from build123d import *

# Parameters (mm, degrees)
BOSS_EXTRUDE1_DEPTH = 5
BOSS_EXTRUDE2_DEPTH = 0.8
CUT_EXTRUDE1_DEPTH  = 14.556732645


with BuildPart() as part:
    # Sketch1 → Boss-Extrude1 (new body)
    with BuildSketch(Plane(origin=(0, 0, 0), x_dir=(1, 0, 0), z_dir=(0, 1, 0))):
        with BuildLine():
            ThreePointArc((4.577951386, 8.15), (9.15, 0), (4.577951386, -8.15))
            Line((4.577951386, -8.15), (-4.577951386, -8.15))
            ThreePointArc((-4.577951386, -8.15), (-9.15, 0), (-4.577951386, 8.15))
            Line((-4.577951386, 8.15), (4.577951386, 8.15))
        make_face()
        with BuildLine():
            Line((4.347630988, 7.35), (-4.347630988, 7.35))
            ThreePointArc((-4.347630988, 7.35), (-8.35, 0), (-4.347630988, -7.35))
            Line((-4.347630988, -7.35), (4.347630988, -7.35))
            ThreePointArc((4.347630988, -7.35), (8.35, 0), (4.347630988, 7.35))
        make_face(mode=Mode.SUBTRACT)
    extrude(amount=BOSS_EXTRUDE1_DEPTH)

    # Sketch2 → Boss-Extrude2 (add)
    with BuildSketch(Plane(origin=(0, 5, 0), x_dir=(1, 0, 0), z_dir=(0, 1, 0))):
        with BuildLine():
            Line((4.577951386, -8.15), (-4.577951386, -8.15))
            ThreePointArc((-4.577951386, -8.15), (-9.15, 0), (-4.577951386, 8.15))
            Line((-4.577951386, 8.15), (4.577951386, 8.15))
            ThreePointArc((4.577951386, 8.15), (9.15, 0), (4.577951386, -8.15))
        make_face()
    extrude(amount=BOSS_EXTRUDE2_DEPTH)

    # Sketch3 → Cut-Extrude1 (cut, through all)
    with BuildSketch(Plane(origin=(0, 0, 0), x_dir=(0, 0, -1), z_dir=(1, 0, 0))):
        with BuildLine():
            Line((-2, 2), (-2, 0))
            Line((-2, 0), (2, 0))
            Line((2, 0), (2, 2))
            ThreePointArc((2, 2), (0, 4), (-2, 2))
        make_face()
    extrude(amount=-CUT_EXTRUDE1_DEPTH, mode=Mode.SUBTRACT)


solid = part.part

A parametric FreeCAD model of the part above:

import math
import FreeCAD as App
import Part
import Sketcher
Q = App.Units.Quantity

doc = App.newDocument("Part")
body = doc.addObject("PartDesign::Body", "Body")

# Sketch on XZ plane
sketch1 = body.newObject("Sketcher::SketchObject", "Sketch")
sketch1.AttachmentSupport = (doc.getObject("XZ_Plane"), [""])
sketch1.MapMode = "FlatFace"
sketch1.addGeometry([
    Part.ArcOfCircle(Part.Circle(App.Vector(-0.4, 0, 0), App.Vector(0, 0, 1), 9.55), math.radians(-58.583766), math.radians(58.583766)),  # 0
    Part.LineSegment(App.Vector(4.577951, -8.15, 0), App.Vector(-4.577951, -8.15, 0)),  # 1
    Part.ArcOfCircle(Part.Circle(App.Vector(0.4, 0, 0), App.Vector(0, 0, 1), 9.55), math.radians(121.416234), math.radians(238.583766)),  # 2
    Part.LineSegment(App.Vector(-4.577951, 8.15, 0), App.Vector(4.577951, 8.15, 0)),  # 3
    Part.ArcOfCircle(Part.Circle(App.Vector(-0.4, 0, 0), App.Vector(0, 0, 1), 8.75), math.radians(-57.14012), math.radians(57.14012)),  # 4
    Part.LineSegment(App.Vector(4.347631, 7.35, 0), App.Vector(-4.347631, 7.35, 0)),  # 5
    Part.ArcOfCircle(Part.Circle(App.Vector(0.4, 0, 0), App.Vector(0, 0, 1), 8.75), math.radians(122.85988), math.radians(237.14012)),  # 6
    Part.LineSegment(App.Vector(-4.347631, -7.35, 0), App.Vector(4.347631, -7.35, 0)),  # 7
], False)
sketch1.addConstraint([
    Sketcher.Constraint("Coincident", 0, 1, 1, 1),
    Sketcher.Constraint("Coincident", 1, 2, 2, 2),
    Sketcher.Constraint("Coincident", 2, 1, 3, 1),
    Sketcher.Constraint("Coincident", 3, 2, 0, 2),
    Sketcher.Constraint("Coincident", 4, 2, 5, 1),
    Sketcher.Constraint("Coincident", 5, 2, 6, 1),
    Sketcher.Constraint("Coincident", 6, 2, 7, 1),
    Sketcher.Constraint("Coincident", 7, 2, 4, 1),
    Sketcher.Constraint("Horizontal", 1),
    Sketcher.Constraint("Horizontal", 3),
    Sketcher.Constraint("Horizontal", 5),
    Sketcher.Constraint("Horizontal", 7),
    Sketcher.Constraint("Coincident", 4, 3, 0, 3),
    Sketcher.Constraint("Coincident", 6, 3, 2, 3),
    Sketcher.Constraint("Equal", 0, 2),
    Sketcher.Constraint("Equal", 4, 6),
    Sketcher.Constraint("Symmetric", 0, 3, 2, 3, -1, 1),
    Sketcher.Constraint("Symmetric", 1, 2, 2, 1, -1),
    Sketcher.Constraint("Vertical", 5, 2, 6, 2),
    Sketcher.Constraint("Radius", 0, Q("9.55 mm")),
    Sketcher.Constraint("Radius", 4, Q("8.75 mm")),
    Sketcher.Constraint("DistanceX", 0, 3, -1, 1, Q("0.4 mm")),
    Sketcher.Constraint("DistanceY", 1, 2, 2, 1, Q("16.3 mm")),
    Sketcher.Constraint("DistanceY", 4, 2, 3, 2, Q("0.8 mm")),
])
pad1 = body.newObject("PartDesign::Pad", "Pad")
pad1.Profile = sketch1
pad1.Length = 5
pad1.Reversed = True

# Sketch on XZ plane
sketch2 = body.newObject("Sketcher::SketchObject", "Sketch001")
sketch2.AttachmentSupport = (doc.getObject("XZ_Plane"), [""])
sketch2.MapMode = "FlatFace"
sketch2.AttachmentOffset = App.Placement(App.Vector(0, 0, -5), App.Rotation())
sketch2.addGeometry([
    Part.LineSegment(App.Vector(-4.577951, 8.15, 0), App.Vector(4.577951, 8.15, 0)),
    Part.ArcOfCircle(Part.Circle(App.Vector(-0.4, 0, 0), App.Vector(0, 0, 1), 9.55), math.radians(-58.583766), math.radians(58.583766)),
    Part.LineSegment(App.Vector(4.577951, -8.15, 0), App.Vector(-4.577951, -8.15, 0)),
    Part.ArcOfCircle(Part.Circle(App.Vector(0.4, 0, 0), App.Vector(0, 0, 1), 9.55), math.radians(121.416234), math.radians(238.583766)),
], False)
sketch2.addConstraint([
    Sketcher.Constraint("Coincident", 0, 2, 1, 2),
    Sketcher.Constraint("Coincident", 1, 1, 2, 1),
    Sketcher.Constraint("Coincident", 2, 2, 3, 2),
    Sketcher.Constraint("Coincident", 3, 1, 0, 1),
    Sketcher.Constraint("Horizontal", 0),
    Sketcher.Constraint("Horizontal", 2),
    Sketcher.Constraint("Equal", 1, 3),
    Sketcher.Constraint("Symmetric", 1, 3, 3, 3, -1, 1),
    Sketcher.Constraint("Symmetric", 0, 2, 1, 1, -1),
    Sketcher.Constraint("Radius", 1, Q("9.55 mm")),
    Sketcher.Constraint("DistanceX", 1, 3, -1, 1, Q("0.4 mm")),
    Sketcher.Constraint("DistanceY", 1, 1, 0, 2, Q("16.3 mm")),
])
pad2 = body.newObject("PartDesign::Pad", "Pad001")
pad2.Profile = sketch2
pad2.Length = 0.8
pad2.Reversed = True

# Sketch on YZ plane
sketch3 = body.newObject("Sketcher::SketchObject", "Sketch002")
sketch3.AttachmentSupport = (doc.getObject("YZ_Plane"), [""])
sketch3.MapMode = "FlatFace"
sketch3.addGeometry([
    Part.LineSegment(App.Vector(2, 2, 0), App.Vector(0, 2, 0)),
    Part.LineSegment(App.Vector(0, 2, 0), App.Vector(0, -2, 0)),
    Part.LineSegment(App.Vector(0, -2, 0), App.Vector(2, -2, 0)),
    Part.ArcOfCircle(Part.Circle(App.Vector(2, 0, 0), App.Vector(0, 0, 1), 2), math.radians(-90), math.radians(90)),
], False)
sketch3.addConstraint([
    Sketcher.Constraint("Coincident", 0, 2, 1, 1),
    Sketcher.Constraint("Coincident", 1, 2, 2, 1),
    Sketcher.Constraint("Tangent", 2, 2, 3, 1),
    Sketcher.Constraint("Tangent", 3, 2, 0, 1),
    Sketcher.Constraint("Horizontal", 0),
    Sketcher.Constraint("Vertical", 1),
    Sketcher.Constraint("Horizontal", 2),
    Sketcher.Constraint("Symmetric", 0, 2, 1, 2, -1, 1),
    Sketcher.Constraint("Radius", 3, Q("2 mm")),
    Sketcher.Constraint("DistanceX", 0, 2, 0, 1, Q("2 mm")),
])
pocket1 = body.newObject("PartDesign::Pocket", "Pocket")
pocket1.Profile = sketch3
pocket1.Type = "ThroughAll"

doc.recompute()
